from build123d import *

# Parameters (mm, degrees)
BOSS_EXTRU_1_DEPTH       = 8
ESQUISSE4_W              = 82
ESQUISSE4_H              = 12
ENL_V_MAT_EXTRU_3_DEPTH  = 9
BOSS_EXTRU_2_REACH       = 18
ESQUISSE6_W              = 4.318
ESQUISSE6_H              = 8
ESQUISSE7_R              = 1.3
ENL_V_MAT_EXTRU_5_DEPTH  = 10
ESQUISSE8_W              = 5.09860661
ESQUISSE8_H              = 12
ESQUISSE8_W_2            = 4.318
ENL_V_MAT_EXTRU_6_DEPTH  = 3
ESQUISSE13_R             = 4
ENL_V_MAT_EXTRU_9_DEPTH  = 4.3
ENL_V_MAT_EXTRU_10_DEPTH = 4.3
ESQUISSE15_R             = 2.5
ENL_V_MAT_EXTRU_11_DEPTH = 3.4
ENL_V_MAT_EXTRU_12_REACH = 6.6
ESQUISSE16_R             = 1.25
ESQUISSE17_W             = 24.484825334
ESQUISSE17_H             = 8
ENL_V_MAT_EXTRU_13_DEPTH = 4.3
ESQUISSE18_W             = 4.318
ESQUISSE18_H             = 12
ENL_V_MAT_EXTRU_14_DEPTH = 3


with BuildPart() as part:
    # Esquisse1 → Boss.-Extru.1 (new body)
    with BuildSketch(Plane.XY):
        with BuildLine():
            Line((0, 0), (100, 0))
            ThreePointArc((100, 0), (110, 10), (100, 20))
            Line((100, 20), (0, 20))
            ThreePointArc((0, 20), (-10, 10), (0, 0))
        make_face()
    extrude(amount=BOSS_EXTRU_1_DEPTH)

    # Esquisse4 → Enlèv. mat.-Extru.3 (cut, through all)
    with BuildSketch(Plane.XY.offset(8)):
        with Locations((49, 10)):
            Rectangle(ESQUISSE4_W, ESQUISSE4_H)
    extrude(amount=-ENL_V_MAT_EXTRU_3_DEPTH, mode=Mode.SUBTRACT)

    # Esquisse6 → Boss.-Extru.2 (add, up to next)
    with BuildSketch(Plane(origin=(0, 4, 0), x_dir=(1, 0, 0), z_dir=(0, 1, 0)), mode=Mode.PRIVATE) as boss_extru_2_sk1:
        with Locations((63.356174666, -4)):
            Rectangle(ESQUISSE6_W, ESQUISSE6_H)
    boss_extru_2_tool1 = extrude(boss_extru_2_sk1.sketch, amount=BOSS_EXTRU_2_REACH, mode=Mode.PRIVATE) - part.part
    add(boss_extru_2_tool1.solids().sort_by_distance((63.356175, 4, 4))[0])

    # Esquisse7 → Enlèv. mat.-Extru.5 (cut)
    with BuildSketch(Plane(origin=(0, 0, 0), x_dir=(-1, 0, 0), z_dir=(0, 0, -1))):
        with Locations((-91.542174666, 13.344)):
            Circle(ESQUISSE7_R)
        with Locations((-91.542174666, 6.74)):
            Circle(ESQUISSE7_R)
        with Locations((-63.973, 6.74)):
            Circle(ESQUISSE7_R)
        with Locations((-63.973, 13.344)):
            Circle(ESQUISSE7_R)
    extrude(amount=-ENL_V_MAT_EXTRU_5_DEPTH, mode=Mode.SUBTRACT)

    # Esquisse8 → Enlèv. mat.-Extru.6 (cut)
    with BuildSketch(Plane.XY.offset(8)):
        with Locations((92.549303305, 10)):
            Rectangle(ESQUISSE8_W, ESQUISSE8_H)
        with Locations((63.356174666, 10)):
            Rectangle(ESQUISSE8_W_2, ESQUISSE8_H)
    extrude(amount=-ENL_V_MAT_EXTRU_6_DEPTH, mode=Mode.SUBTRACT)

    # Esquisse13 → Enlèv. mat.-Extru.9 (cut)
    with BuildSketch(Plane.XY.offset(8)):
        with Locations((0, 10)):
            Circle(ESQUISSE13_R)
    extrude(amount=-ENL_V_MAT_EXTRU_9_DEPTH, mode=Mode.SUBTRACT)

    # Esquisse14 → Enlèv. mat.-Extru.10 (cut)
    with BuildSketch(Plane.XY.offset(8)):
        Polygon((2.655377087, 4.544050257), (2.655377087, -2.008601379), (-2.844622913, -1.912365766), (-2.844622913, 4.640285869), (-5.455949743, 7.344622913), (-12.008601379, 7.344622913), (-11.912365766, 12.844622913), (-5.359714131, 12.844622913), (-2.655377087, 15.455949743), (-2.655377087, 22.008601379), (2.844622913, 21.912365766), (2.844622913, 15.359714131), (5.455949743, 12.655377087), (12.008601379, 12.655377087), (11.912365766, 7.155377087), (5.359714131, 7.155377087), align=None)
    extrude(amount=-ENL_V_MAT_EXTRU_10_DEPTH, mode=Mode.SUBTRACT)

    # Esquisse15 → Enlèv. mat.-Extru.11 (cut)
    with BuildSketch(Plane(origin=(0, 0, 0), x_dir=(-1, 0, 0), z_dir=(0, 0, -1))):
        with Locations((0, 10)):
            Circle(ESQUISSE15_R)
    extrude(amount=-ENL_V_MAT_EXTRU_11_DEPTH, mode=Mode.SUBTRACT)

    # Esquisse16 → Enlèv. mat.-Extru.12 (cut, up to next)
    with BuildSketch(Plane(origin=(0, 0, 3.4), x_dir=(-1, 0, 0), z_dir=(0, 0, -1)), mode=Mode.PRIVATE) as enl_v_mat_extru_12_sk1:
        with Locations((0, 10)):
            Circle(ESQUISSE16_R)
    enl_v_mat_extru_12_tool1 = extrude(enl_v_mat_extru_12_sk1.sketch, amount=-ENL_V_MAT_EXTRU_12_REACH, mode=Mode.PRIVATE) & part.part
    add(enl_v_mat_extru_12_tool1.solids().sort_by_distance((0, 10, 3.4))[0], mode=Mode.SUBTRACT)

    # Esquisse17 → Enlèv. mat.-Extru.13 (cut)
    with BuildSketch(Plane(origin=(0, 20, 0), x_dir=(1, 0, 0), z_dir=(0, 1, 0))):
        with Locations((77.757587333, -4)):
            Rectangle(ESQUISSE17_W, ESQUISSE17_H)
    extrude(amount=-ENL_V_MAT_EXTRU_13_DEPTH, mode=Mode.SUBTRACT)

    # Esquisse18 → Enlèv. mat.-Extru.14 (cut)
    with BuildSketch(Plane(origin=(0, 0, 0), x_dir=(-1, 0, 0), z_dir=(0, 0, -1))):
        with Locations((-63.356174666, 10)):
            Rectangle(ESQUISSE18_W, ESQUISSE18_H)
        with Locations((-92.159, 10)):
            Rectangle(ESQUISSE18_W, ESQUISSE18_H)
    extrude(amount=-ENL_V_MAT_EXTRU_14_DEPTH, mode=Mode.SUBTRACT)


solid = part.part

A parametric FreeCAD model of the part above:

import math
import FreeCAD as App
import Part
import Sketcher
from FreeCAD import Vector


def add_polygon(sketch, points):
    """Adds a closed chain of lines whose ends are joined by coincident constraints."""
    first, n = sketch.GeometryCount, len(points)
    for a, b in zip(points, points[1:] + points[:1]):
        sketch.addGeometry(Part.LineSegment(App.Vector(*a, 0), App.Vector(*b, 0)), False)
    for i in range(n):
        sketch.addConstraint(Sketcher.Constraint("Coincident", first + i, 2, first + (i + 1) % n, 1))

doc = App.newDocument("Part")
params = doc.addObject("Spreadsheet::Sheet", "Params")
for row, (alias, value) in enumerate([
    ("sketch1_radius", "10 mm"),
    ("sketch1_width", "100 mm"),
    ("pad1_length", "8 mm"),
    ("sketch2_width", "82 mm"),
    ("sketch2_height", "12 mm"),
    ("sketch3_height", "8 mm"),
    ("sketch4_diameter", "2.6 mm"),
    ("pocket2_length", "10 mm"),
    ("sketch5_height", "12 mm"),
    ("pocket3_length", "3 mm"),
    ("sketch6_diameter", "8 mm"),
    ("pocket4_length", "4.3 mm"),
    ("pocket5_length", "4.3 mm"),
    ("sketch8_diameter", "5 mm"),
    ("pocket6_length", "3.4 mm"),
    ("sketch9_diameter", "2.5 mm"),
    ("sketch10_height", "8 mm"),
    ("pocket8_length", "4.3 mm"),
    ("sketch11_height", "12 mm"),
    ("pocket9_length", "3 mm"),
], start=1):
    params.set(f"A{row}", alias)
    params.set(f"B{row}", "=" + value)
    params.setAlias(f"B{row}", alias)

body = doc.addObject("PartDesign::Body", "Body")

# Sketch on XY plane
sketch1 = body.newObject("Sketcher::SketchObject", "Sketch")
sketch1.AttachmentSupport = (doc.getObject("XY_Plane"), [""])
sketch1.MapMode = "FlatFace"
sketch1.addGeometry([
    Part.LineSegment(Vector(0, 0, 0), Vector(100, 0, 0)),
    Part.ArcOfCircle(Part.Circle(Vector(100, 10, 0), Vector(0, 0, 1), 10), math.radians(-90), math.radians(90)),
    Part.LineSegment(Vector(100, 20, 0), Vector(0, 20, 0)),
    Part.ArcOfCircle(Part.Circle(Vector(0, 10, 0), Vector(0, 0, 1), 10), math.radians(90), math.radians(270)),
], False)
sketch1.addConstraint([
    Sketcher.Constraint("Tangent", 0, 2, 1, 1),
    Sketcher.Constraint("Tangent", 1, 2, 2, 1),
    Sketcher.Constraint("Tangent", 2, 2, 3, 1),
    Sketcher.Constraint("Tangent", 3, 2, 0, 1),
    Sketcher.Constraint("Horizontal", 0),
    Sketcher.Constraint("Horizontal", 2),
    Sketcher.Constraint("Coincident", 3, 2, -1, 1),
    Sketcher.Constraint("Radius", 1, 10.0),
    Sketcher.Constraint("DistanceX", 0, 1, 0, 2, 100.0),
])
sketch1.setExpression("Constraints[7]", "Params.sketch1_radius")
sketch1.setExpression("Constraints[8]", "Params.sketch1_width")
pad1 = body.newObject("PartDesign::Pad", "Pad")
pad1.Profile = sketch1
pad1.setExpression("Length", "Params.pad1_length")

# Sketch on XY plane
sketch2 = body.newObject("Sketcher::SketchObject", "Sketch001")
sketch2.AttachmentSupport = (doc.getObject("XY_Plane"), [""])
sketch2.MapMode = "FlatFace"
sketch2.AttachmentOffset = App.Placement(Vector(0, 0, 8), App.Rotation())
add_polygon(sketch2, [(8, 16), (8, 4), (90, 4), (90, 16)])  # lines 0-3
sketch2.addConstraint([
    Sketcher.Constraint("Vertical", 0),
    Sketcher.Constraint("Horizontal", 1),
    Sketcher.Constraint("Vertical", 2),
    Sketcher.Constraint("Horizontal", 3),
    Sketcher.Constraint("DistanceX", 1, 1, 1, 2, 82.0),
    Sketcher.Constraint("DistanceY", 0, 2, 0, 1, 12.0),
    Sketcher.Constraint("DistanceX", -1, 1, 0, 2, 8.0),
    Sketcher.Constraint("DistanceY", -1, 1, 0, 2, 4.0),
])
sketch2.setExpression("Constraints[8]", "Params.sketch2_width")
sketch2.setExpression("Constraints[9]", "Params.sketch2_height")
pocket1 = body.newObject("PartDesign::Pocket", "Pocket")
pocket1.Profile = sketch2
pocket1.Type = "ThroughAll"

# Sketch on XZ plane
sketch3 = body.newObject("Sketcher::SketchObject", "Sketch002")
sketch3.AttachmentSupport = (doc.getObject("XZ_Plane"), [""])
sketch3.MapMode = "FlatFace"
sketch3.AttachmentOffset = App.Placement(Vector(0, 0, -4), App.Rotation())
add_polygon(sketch3, [(61.197175, 0), (61.197175, 8), (65.515175, 8), (65.515175, 0)])  # lines 0-3
sketch3.addConstraint([
    Sketcher.Constraint("Vertical", 0),
    Sketcher.Constraint("Horizontal", 1),
    Sketcher.Constraint("Vertical", 2),
    Sketcher.Constraint("Horizontal", 3),
    Sketcher.Constraint("PointOnObject", 2, 2, -1),
    Sketcher.Constraint("DistanceY", 0, 1, 0, 2, 8.0),
    Sketcher.Constraint("DistanceX", 1, 1, 1, 2, 4.318),
    Sketcher.Constraint("DistanceX", -1, 1, 0, 2, 61.197175),
])
sketch3.setExpression("Constraints[9]", "Params.sketch3_height")
pad2 = body.newObject("PartDesign::Pad", "Pad001")
pad2.Profile = sketch3
pad2.Type = "UpToFirst"
pad2.Reversed = True

# Sketch on XY plane
sketch4 = body.newObject("Sketcher::SketchObject", "Sketch003")
sketch4.AttachmentSupport = (doc.getObject("XY_Plane"), [""])
sketch4.MapMode = "FlatFace"
sketch4.addGeometry([
    Part.Circle(Vector(91.542175, 13.344, 0), Vector(0, 0, 1), 1.3),
    Part.Circle(Vector(91.542175, 6.74, 0), Vector(0, 0, 1), 1.3),
    Part.Circle(Vector(63.973, 6.74, 0), Vector(0, 0, 1), 1.3),
    Part.Circle(Vector(63.973, 13.344, 0), Vector(0, 0, 1), 1.3),
], False)
sketch4.addConstraint([
    Sketcher.Constraint("Equal", 0, 1),
    Sketcher.Constraint("Equal", 1, 2),
    Sketcher.Constraint("Equal", 2, 3),
    Sketcher.Constraint("Horizontal", 1, 3, 2, 3),
    Sketcher.Constraint("Horizontal", 0, 3, 3, 3),
    Sketcher.Constraint("Vertical", 0, 3, 1, 3),
    Sketcher.Constraint("Vertical", 2, 3, 3, 3),
    Sketcher.Constraint("Diameter", 0, 2.6),
    Sketcher.Constraint("DistanceY", -1, 1, 1, 3, 6.74),
    Sketcher.Constraint("DistanceY", -1, 1, 0, 3, 13.344),
    Sketcher.Constraint("DistanceX", -1, 1, 2, 3, 63.973),
    Sketcher.Constraint("DistanceX", -1, 1, 0, 3, 91.542175),
])
sketch4.setExpression("Constraints[7]", "Params.sketch4_diameter")
pocket2 = body.newObject("PartDesign::Pocket", "Pocket001")
pocket2.Profile = sketch4
pocket2.setExpression("Length", "Params.pocket2_length")
pocket2.Reversed = True

# Sketch on XY plane
sketch5 = body.newObject("Sketcher::SketchObject", "Sketch004")
sketch5.AttachmentSupport = (doc.getObject("XY_Plane"), [""])
sketch5.MapMode = "FlatFace"
sketch5.AttachmentOffset = App.Placement(Vector(0, 0, 8), App.Rotation())
add_polygon(sketch5, [(90, 16), (90, 4), (95.098607, 4), (95.098607, 16)])  # lines 0-3
add_polygon(sketch5, [(61.197175, 16), (61.197175, 4), (65.515175, 4), (65.515175, 16)])  # lines 4-7
sketch5.addConstraint([
    Sketcher.Constraint("Vertical", 0),
    Sketcher.Constraint("Horizontal", 1),
    Sketcher.Constraint("Vertical", 2),
    Sketcher.Constraint("Horizontal", 3),
    Sketcher.Constraint("Vertical", 4),
    Sketcher.Constraint("Horizontal", 5),
    Sketcher.Constraint("Vertical", 6),
    Sketcher.Constraint("Horizontal", 7),
    Sketcher.Constraint("Horizontal", 1, 2, 4, 2),
    Sketcher.Constraint("Horizontal", 3, 2, 6, 2),
    Sketcher.Constraint("DistanceY", 0, 2, 0, 1, 12.0),
    Sketcher.Constraint("DistanceX", -1, 1, 0, 2, 90.0),
    Sketcher.Constraint("DistanceY", -1, 1, 0, 2, 4.0),
    Sketcher.Constraint("DistanceX", 5, 1, 5, 2, 4.318),
    Sketcher.Constraint("DistanceX", 1, 1, 1, 2, 5.098607),
    Sketcher.Constraint("DistanceX", 4, 2, 1, 2, 33.901432),
])
sketch5.setExpression("Constraints[18]", "Params.sketch5_height")
pocket3 = body.newObject("PartDesign::Pocket", "Pocket002")
pocket3.Profile = sketch5
pocket3.setExpression("Length", "Params.pocket3_length")

# Sketch on XY plane
sketch6 = body.newObject("Sketcher::SketchObject", "Sketch005")
sketch6.AttachmentSupport = (doc.getObject("XY_Plane"), [""])
sketch6.MapMode = "FlatFace"
sketch6.AttachmentOffset = App.Placement(Vector(0, 0, 8), App.Rotation())
sketch6.addGeometry(Part.Circle(Vector(0, 10, 0), Vector(0, 0, 1), 4), False)
sketch6.addConstraint([
    Sketcher.Constraint("PointOnObject", 0, 3, -2),
    Sketcher.Constraint("Diameter", 0, 8.0),
    Sketcher.Constraint("DistanceY", -1, 1, 0, 3, 10.0),
])
sketch6.setExpression("Constraints[1]", "Params.sketch6_diameter")
pocket4 = body.newObject("PartDesign::Pocket", "Pocket003")
pocket4.Profile = sketch6
pocket4.setExpression("Length", "Params.pocket4_length")

# Sketch on XY plane
sketch7 = body.newObject("Sketcher::SketchObject", "Sketch006")
sketch7.AttachmentSupport = (doc.getObject("XY_Plane"), [""])
sketch7.MapMode = "FlatFace"
sketch7.AttachmentOffset = App.Placement(Vector(0, 0, 8), App.Rotation())
add_polygon(sketch7, [(2.655377, -2.008601), (2.655377, 4.54405), (5.359714, 7.155377), (11.912366, 7.155377), (12.008601, 12.655377), (5.45595, 12.655377), (2.844623, 15.359714), (2.844623, 21.912366), (-2.655377, 22.008601), (-2.655377, 15.45595), (-5.359714, 12.844623), (-11.912366, 12.844623), (-12.008601, 7.344623), (-5.45595, 7.344623), (-2.844623, 4.640286), (-2.844623, -1.912366)])  # lines 0-15
sketch7.addConstraint([
    Sketcher.Constraint("Vertical", 0),
    Sketcher.Constraint("Horizontal", 2),
    Sketcher.Constraint("Horizontal", 4),
    Sketcher.Constraint("Vertical", 6),
    Sketcher.Constraint("Vertical", 8),
    Sketcher.Constraint("Horizontal", 10),
    Sketcher.Constraint("Horizontal", 12),
    Sketcher.Constraint("Vertical", 14),
    Sketcher.Constraint("Perpendicular", 1, 5),
    Sketcher.Constraint("Perpendicular", 3, 7),
    Sketcher.Constraint("Perpendicular", 5, 9),
    Sketcher.Constraint("Perpendicular", 7, 11),
    Sketcher.Constraint("Perpendicular", 9, 13),
    Sketcher.Constraint("Perpendicular", 11, 15),
    Sketcher.Constraint("Equal", 2, 4),
    Sketcher.Constraint("Equal", 4, 10),
    Sketcher.Constraint("Equal", 10, 12),
    Sketcher.Constraint("Equal", 12, 0),
    Sketcher.Constraint("Equal", 0, 6),
    Sketcher.Constraint("Equal", 6, 8),
    Sketcher.Constraint("Equal", 8, 14),
    Sketcher.Constraint("Equal", 1, 5),
    Sketcher.Constraint("Equal", 3, 7),
    Sketcher.Constraint("Equal", 5, 9),
    Sketcher.Constraint("Equal", 7, 11),
    Sketcher.Constraint("DistanceY", 2, 2, 3, 2, 5.5),
    Sketcher.Constraint("DistanceX", 2, 1, 2, 2, 6.552652),
    Sketcher.Constraint("DistanceX", -1, 1, 3, 2, 12.008601),
    Sketcher.Constraint("DistanceY", -1, 1, 7, 2, 22.008601),
    Sketcher.Constraint("DistanceX", 11, 2, -1, 1, 12.008601),
    Sketcher.Constraint("Distance", 3, 5.500842),
    Sketcher.Constraint("DistanceX", 0, 2, 2, 2, 9.256989),
])
pocket5 = body.newObject("PartDesign::Pocket", "Pocket004")
pocket5.Profile = sketch7
pocket5.setExpression("Length", "Params.pocket5_length")

# Sketch on XY plane
sketch8 = body.newObject("Sketcher::SketchObject", "Sketch007")
sketch8.AttachmentSupport = (doc.getObject("XY_Plane"), [""])
sketch8.MapMode = "FlatFace"
sketch8.addGeometry(Part.Circle(Vector(0, 10, 0), Vector(0, 0, 1), 2.5), False)
sketch8.addConstraint([
    Sketcher.Constraint("PointOnObject", 0, 3, -2),
    Sketcher.Constraint("Diameter", 0, 5.0),
    Sketcher.Constraint("DistanceY", -1, 1, 0, 3, 10.0),
])
sketch8.setExpression("Constraints[1]", "Params.sketch8_diameter")
pocket6 = body.newObject("PartDesign::Pocket", "Pocket005")
pocket6.Profile = sketch8
pocket6.setExpression("Length", "Params.pocket6_length")
pocket6.Reversed = True

# Sketch on XY plane
sketch9 = body.newObject("Sketcher::SketchObject", "Sketch008")
sketch9.AttachmentSupport = (doc.getObject("XY_Plane"), [""])
sketch9.MapMode = "FlatFace"
sketch9.AttachmentOffset = App.Placement(Vector(0, 0, 3.4), App.Rotation())
sketch9.addGeometry(Part.Circle(Vector(0, 10, 0), Vector(0, 0, 1), 1.25), False)
sketch9.addConstraint([
    Sketcher.Constraint("PointOnObject", 0, 3, -2),
    Sketcher.Constraint("Diameter", 0, 2.5),
    Sketcher.Constraint("DistanceY", -1, 1, 0, 3, 10.0),
])
sketch9.setExpression("Constraints[1]", "Params.sketch9_diameter")
pocket7 = body.newObject("PartDesign::Pocket", "Pocket006")
pocket7.Profile = sketch9
pocket7.Type = "UpToFirst"
pocket7.Reversed = True

# Sketch on XZ plane
sketch10 = body.newObject("Sketcher::SketchObject", "Sketch009")
sketch10.AttachmentSupport = (doc.getObject("XZ_Plane"), [""])
sketch10.MapMode = "FlatFace"
sketch10.AttachmentOffset = App.Placement(Vector(0, 0, -20), App.Rotation())
add_polygon(sketch10, [(65.515175, 0), (65.515175, 8), (90, 8), (90, 0)])  # lines 0-3
sketch10.addConstraint([
    Sketcher.Constraint("Vertical", 0),
    Sketcher.Constraint("Horizontal", 1),
    Sketcher.Constraint("Vertical", 2),
    Sketcher.Constraint("Horizontal", 3),
    Sketcher.Constraint("PointOnObject", 2, 2, -1),
    Sketcher.Constraint("DistanceY", 0, 1, 0, 2, 8.0),
    Sketcher.Constraint("DistanceX", -1, 1, 1, 2, 90.0),
    Sketcher.Constraint("DistanceX", 1, 1, 1, 2, 24.484825),
])
sketch10.setExpression("Constraints[9]", "Params.sketch10_height")
pocket8 = body.newObject("PartDesign::Pocket", "Pocket007")
pocket8.Profile = sketch10
pocket8.setExpression("Length", "Params.pocket8_length")
pocket8.Reversed = True

# Sketch on XY plane
sketch11 = body.newObject("Sketcher::SketchObject", "Sketch010")
sketch11.AttachmentSupport = (doc.getObject("XY_Plane"), [""])
sketch11.MapMode = "FlatFace"
add_polygon(sketch11, [(65.515175, 16), (65.515175, 4), (61.197175, 4), (61.197175, 16)])  # lines 0-3
add_polygon(sketch11, [(94.318, 16), (94.318, 4), (90, 4), (90, 16)])  # lines 4-7
sketch11.addConstraint([
    Sketcher.Constraint("Vertical", 0),
    Sketcher.Constraint("Horizontal", 1),
    Sketcher.Constraint("Vertical", 2),
    Sketcher.Constraint("Horizontal", 3),
    Sketcher.Constraint("Vertical", 4),
    Sketcher.Constraint("Horizontal", 5),
    Sketcher.Constraint("Vertical", 6),
    Sketcher.Constraint("Horizontal", 7),
    Sketcher.Constraint("Horizontal", 1, 2, 4, 2),
    Sketcher.Constraint("Horizontal", 3, 2, 6, 2),
    Sketcher.Constraint("Equal", 3, 5),
    Sketcher.Constraint("DistanceY", 0, 2, 0, 1, 12.0),
    Sketcher.Constraint("DistanceY", -1, 1, 0, 2, 4.0),
    Sketcher.Constraint("DistanceX", -1, 1, 5, 2, 90.0),
    Sketcher.Constraint("DistanceX", 1, 2, 1, 1, 4.318),
    Sketcher.Constraint("DistanceX", -1, 1, 0, 2, 65.515175),
])
sketch11.setExpression("Constraints[19]", "Params.sketch11_height")
pocket9 = body.newObject("PartDesign::Pocket", "Pocket008")
pocket9.Profile = sketch11
pocket9.setExpression("Length", "Params.pocket9_length")
pocket9.Reversed = True

doc.recompute()
